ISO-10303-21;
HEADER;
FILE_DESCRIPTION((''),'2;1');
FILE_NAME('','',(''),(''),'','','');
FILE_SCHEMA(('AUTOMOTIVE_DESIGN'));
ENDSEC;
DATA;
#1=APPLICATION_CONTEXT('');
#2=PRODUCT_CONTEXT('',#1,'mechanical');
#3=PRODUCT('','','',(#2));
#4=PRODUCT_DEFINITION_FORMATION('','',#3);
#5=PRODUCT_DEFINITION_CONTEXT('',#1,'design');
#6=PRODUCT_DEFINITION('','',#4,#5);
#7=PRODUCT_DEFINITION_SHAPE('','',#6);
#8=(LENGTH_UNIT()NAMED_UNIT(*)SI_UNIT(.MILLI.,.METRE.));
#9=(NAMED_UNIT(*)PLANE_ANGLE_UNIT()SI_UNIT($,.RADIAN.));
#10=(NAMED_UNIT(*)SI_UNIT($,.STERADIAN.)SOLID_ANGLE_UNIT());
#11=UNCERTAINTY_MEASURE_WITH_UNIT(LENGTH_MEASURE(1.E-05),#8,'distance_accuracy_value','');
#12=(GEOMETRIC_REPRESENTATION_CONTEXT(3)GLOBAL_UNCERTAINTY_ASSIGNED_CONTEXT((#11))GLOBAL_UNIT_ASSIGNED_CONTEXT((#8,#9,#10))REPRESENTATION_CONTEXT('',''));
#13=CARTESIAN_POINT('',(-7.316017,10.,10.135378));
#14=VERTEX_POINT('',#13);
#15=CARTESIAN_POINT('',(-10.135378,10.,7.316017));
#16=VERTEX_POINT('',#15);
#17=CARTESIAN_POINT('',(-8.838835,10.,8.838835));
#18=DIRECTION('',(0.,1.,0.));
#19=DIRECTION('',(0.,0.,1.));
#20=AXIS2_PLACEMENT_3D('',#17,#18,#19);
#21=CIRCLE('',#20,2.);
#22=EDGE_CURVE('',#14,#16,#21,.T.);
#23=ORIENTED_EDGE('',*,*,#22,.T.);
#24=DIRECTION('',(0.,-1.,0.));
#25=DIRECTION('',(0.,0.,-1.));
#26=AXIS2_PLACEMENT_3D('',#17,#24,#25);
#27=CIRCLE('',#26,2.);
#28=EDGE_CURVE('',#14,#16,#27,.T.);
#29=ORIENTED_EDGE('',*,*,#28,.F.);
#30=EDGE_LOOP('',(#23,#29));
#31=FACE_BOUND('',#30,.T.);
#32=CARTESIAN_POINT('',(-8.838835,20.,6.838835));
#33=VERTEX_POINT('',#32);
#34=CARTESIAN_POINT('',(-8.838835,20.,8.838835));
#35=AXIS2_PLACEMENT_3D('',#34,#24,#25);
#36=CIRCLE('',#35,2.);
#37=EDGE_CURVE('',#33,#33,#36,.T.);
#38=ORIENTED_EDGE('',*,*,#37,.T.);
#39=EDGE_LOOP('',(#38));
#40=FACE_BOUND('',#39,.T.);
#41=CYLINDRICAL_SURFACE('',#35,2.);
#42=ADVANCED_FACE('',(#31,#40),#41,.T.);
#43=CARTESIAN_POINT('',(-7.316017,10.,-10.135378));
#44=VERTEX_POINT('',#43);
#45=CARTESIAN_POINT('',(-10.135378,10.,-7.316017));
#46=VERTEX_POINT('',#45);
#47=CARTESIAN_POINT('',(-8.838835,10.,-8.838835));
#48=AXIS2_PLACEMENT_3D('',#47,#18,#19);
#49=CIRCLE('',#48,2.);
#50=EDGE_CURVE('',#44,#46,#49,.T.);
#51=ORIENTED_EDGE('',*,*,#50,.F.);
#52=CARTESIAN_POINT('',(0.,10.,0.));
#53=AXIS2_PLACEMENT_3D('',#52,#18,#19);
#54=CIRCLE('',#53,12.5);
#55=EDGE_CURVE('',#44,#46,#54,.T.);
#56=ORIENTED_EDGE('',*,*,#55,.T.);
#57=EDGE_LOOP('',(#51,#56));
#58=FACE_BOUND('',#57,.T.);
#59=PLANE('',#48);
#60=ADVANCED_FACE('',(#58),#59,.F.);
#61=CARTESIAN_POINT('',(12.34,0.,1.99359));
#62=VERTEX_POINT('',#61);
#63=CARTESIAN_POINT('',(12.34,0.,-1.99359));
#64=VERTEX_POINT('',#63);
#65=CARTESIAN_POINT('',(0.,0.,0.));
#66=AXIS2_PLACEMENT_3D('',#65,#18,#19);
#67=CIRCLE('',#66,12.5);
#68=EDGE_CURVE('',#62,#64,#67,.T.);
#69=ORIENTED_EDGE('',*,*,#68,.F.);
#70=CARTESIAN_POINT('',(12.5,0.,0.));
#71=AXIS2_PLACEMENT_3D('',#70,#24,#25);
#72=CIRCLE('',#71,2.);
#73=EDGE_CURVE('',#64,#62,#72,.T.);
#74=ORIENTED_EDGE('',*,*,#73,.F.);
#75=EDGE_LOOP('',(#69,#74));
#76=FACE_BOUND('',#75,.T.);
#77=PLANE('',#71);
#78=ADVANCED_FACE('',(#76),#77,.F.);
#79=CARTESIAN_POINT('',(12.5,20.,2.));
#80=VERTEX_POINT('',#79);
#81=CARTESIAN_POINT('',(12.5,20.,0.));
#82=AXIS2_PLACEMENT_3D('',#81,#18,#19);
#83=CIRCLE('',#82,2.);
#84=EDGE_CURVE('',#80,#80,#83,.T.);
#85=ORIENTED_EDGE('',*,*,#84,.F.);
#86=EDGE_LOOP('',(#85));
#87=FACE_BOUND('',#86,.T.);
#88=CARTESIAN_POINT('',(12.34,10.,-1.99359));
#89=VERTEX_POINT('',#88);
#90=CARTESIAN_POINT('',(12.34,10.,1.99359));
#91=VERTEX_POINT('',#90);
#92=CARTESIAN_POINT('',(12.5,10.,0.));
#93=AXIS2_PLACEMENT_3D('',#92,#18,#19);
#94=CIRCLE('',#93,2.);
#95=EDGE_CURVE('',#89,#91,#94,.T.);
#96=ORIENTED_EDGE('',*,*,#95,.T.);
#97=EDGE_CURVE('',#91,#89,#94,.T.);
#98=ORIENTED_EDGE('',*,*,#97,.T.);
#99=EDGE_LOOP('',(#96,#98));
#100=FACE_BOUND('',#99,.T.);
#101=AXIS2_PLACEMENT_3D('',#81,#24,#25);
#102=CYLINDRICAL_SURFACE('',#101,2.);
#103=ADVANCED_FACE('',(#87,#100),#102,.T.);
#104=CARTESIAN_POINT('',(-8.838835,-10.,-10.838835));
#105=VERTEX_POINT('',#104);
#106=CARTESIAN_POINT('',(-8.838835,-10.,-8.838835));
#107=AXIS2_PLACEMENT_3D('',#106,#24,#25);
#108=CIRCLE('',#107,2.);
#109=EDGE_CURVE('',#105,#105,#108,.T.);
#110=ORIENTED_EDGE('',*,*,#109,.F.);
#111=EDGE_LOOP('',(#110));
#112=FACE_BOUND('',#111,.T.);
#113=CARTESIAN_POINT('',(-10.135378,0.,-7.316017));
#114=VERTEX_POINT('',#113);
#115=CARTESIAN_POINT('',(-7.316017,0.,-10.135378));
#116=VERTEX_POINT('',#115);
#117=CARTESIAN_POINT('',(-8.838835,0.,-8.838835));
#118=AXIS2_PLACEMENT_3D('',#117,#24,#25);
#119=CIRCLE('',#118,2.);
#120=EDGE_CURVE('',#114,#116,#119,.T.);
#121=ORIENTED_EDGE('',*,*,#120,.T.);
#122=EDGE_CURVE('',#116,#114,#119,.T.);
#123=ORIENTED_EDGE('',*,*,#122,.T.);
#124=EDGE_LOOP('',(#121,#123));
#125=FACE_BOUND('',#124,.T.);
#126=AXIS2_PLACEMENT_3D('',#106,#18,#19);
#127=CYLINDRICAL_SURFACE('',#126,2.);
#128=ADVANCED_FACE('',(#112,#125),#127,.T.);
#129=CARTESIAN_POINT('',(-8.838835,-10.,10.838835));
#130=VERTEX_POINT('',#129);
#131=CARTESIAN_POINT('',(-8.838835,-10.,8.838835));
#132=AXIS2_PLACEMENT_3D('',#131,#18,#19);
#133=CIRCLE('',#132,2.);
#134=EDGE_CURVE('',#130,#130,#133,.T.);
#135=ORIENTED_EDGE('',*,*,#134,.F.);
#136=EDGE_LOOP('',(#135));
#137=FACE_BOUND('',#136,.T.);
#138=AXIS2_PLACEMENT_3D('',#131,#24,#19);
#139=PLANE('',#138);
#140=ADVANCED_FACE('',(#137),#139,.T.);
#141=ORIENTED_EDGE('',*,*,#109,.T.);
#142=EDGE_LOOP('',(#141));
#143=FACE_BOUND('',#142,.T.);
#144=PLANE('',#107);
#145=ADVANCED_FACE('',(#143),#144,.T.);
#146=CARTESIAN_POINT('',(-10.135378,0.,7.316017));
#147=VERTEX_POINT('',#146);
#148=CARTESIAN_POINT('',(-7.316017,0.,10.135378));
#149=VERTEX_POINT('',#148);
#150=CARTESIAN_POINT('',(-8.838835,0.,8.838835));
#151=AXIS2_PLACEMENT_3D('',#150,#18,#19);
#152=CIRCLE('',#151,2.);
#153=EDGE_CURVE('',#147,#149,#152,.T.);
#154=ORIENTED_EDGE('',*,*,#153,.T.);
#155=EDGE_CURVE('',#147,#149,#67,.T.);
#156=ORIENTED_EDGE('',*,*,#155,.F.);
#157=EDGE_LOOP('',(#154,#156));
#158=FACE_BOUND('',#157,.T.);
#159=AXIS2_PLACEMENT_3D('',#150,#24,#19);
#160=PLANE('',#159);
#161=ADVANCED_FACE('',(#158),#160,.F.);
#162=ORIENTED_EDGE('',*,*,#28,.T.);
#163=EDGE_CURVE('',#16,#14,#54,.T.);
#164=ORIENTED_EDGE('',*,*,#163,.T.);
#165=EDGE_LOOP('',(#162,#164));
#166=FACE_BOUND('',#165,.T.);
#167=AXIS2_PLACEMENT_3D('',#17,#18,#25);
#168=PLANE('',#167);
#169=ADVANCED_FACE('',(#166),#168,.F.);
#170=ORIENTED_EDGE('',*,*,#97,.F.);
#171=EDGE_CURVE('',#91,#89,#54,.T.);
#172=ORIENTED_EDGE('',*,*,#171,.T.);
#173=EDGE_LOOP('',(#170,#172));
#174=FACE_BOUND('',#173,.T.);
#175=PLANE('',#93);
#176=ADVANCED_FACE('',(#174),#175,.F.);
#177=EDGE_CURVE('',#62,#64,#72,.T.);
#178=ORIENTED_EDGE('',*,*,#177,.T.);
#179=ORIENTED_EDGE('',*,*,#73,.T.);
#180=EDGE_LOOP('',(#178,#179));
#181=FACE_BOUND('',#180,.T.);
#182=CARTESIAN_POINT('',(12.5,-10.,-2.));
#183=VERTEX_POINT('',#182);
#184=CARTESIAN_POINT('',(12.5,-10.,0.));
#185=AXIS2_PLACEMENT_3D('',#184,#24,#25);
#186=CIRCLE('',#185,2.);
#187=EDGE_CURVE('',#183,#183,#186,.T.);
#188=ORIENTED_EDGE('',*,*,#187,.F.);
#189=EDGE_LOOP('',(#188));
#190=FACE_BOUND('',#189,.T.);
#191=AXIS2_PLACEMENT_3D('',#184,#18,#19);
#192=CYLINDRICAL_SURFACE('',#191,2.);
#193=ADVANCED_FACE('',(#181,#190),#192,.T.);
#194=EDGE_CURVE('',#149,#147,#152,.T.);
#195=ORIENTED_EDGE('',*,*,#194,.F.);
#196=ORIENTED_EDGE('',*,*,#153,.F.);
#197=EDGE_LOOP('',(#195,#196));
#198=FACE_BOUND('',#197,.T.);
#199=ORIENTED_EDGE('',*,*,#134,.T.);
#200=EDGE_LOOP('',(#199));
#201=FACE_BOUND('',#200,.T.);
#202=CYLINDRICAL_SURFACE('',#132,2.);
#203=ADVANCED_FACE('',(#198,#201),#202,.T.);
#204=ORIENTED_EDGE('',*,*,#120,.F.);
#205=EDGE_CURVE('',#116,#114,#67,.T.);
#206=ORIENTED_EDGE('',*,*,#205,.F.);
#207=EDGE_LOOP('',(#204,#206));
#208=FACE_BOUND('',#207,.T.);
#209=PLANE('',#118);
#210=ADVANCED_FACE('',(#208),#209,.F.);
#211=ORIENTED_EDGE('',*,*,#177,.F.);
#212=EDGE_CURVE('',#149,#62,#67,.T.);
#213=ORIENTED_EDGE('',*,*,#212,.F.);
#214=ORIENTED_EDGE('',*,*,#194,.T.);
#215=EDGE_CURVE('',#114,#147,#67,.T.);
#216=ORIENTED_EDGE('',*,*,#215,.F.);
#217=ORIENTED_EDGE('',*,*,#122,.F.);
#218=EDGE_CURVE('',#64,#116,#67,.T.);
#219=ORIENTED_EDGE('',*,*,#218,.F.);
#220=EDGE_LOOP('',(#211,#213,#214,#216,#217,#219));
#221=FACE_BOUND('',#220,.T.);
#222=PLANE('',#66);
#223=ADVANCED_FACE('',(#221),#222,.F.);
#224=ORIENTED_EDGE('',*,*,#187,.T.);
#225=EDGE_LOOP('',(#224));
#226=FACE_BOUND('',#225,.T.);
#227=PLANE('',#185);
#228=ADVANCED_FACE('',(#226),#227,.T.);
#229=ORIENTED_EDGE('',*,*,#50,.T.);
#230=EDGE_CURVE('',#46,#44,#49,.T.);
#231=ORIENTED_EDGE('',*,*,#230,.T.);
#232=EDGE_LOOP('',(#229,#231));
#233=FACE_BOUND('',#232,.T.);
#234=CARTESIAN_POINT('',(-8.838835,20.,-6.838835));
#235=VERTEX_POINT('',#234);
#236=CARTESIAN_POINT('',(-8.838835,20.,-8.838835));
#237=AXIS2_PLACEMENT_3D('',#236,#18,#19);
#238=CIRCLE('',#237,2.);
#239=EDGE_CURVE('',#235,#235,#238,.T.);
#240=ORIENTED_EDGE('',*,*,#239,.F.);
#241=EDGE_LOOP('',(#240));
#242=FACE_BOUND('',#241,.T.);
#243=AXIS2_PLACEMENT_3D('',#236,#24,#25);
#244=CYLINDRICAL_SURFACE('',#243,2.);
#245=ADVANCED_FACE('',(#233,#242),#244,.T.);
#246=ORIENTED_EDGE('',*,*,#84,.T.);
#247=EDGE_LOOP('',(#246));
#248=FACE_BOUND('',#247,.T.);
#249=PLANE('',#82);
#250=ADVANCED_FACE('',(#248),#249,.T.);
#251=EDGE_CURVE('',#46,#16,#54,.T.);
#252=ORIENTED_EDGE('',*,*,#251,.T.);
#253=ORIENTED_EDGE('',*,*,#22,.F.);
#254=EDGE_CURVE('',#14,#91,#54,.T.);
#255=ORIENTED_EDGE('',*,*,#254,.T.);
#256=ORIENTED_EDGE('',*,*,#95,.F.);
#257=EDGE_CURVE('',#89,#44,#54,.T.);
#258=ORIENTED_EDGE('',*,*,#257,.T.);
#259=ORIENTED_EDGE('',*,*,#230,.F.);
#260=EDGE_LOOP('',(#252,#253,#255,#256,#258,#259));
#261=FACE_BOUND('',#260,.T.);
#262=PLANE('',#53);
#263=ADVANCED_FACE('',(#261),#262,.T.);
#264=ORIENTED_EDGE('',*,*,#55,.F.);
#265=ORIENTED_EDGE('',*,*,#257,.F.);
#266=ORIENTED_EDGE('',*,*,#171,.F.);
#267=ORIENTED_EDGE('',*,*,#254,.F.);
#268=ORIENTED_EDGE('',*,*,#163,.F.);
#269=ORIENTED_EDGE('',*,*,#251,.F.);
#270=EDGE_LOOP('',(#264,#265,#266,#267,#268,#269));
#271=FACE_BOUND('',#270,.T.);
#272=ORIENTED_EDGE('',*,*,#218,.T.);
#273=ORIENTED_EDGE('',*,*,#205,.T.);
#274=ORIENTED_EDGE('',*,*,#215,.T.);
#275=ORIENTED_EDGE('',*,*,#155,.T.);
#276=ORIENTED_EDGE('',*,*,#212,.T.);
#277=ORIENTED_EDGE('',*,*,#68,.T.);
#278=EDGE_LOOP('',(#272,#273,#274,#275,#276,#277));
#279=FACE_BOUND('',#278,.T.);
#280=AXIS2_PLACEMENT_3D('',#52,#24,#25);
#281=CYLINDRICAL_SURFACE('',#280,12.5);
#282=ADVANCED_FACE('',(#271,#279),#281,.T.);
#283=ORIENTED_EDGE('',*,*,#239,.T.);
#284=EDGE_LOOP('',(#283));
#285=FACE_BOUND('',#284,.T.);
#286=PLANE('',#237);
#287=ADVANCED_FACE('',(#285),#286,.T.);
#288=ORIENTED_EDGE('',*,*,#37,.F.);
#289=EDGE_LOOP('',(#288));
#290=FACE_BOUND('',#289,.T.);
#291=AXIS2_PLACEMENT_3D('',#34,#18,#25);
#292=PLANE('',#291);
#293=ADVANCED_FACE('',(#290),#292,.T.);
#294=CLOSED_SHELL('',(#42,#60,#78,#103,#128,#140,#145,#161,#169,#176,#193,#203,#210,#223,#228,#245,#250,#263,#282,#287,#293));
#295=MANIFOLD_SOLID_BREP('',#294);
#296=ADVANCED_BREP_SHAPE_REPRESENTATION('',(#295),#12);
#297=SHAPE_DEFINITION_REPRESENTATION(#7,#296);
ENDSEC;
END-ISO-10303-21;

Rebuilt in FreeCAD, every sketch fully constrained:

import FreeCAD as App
import Part
import Sketcher

V = App.Vector

doc = App.newDocument("Part")
body = doc.addObject("PartDesign::Body", "Body")

# Sketch on XZ plane
sketch1 = body.newObject("Sketcher::SketchObject", "Sketch")
sketch1.AttachmentSupport = (doc.getObject("XZ_Plane"), [""])
sketch1.MapMode = "FlatFace"
sketch1.addGeometry(Part.Circle(V(0, 0, 0), V(0, 0, 1), 12.5), False)
sketch1.addConstraint(Sketcher.Constraint("Coincident", 0, 3, -1, 1))
sketch1.addConstraint(Sketcher.Constraint("Diameter", 0, 25.0))
pad1 = body.newObject("PartDesign::Pad", "Pad")
pad1.Profile = sketch1
pad1.Length = 10
pad1.Reversed = True

# Sketch on XZ plane
sketch2 = body.newObject("Sketcher::SketchObject", "Sketch001")
sketch2.AttachmentSupport = (doc.getObject("XZ_Plane"), [""])
sketch2.MapMode = "FlatFace"
sketch2.AttachmentOffset = App.Placement(V(0, 0, -10), App.Rotation())
sketch2.addGeometry(Part.Circle(V(-8.838835, -8.838835, 0), V(0, 0, 1), 2), False)
sketch2.addConstraint(Sketcher.Constraint("Diameter", 0, 4.0))
sketch2.addConstraint(Sketcher.Constraint("DistanceX", 0, 3, -1, 1, 8.838835))
sketch2.addConstraint(Sketcher.Constraint("DistanceY", 0, 3, -1, 1, 8.838835))
pad2 = body.newObject("PartDesign::Pad", "Pad001")
pad2.Profile = sketch2
pad2.Length = 10
pad2.Reversed = True
doc.recompute()

mirrored = body.newObject("PartDesign::Mirrored", "Mirrored")
mirrored.Originals = [pad2]
mirrored.MirrorPlane = (doc.getObject("XY_Plane"), [""])
body.Tip = mirrored

# Sketch on XZ plane
sketch3 = body.newObject("Sketcher::SketchObject", "Sketch002")
sketch3.AttachmentSupport = (doc.getObject("XZ_Plane"), [""])
sketch3.MapMode = "FlatFace"
sketch3.AttachmentOffset = App.Placement(V(0, 0, -10), App.Rotation())
sketch3.addGeometry(Part.Circle(V(12.5, 0, 0), V(0, 0, 1), 2), False)
sketch3.addConstraint(Sketcher.Constraint("PointOnObject", 0, 3, -1))
sketch3.addConstraint(Sketcher.Constraint("Diameter", 0, 4.0))
sketch3.addConstraint(Sketcher.Constraint("DistanceX", -1, 1, 0, 3, 12.5))
pad3 = body.newObject("PartDesign::Pad", "Pad002")
pad3.Profile = sketch3
pad3.Length = 10
pad3.Reversed = True

# Sketch on XZ plane
sketch4 = body.newObject("Sketcher::SketchObject", "Sketch003")
sketch4.AttachmentSupport = (doc.getObject("XZ_Plane"), [""])
sketch4.MapMode = "FlatFace"
sketch4.AttachmentOffset = App.Placement(V(0, 0, 10), App.Rotation())
sketch4.addGeometry(Part.Circle(V(-8.838835, -8.838835, 0), V(0, 0, 1), 2), False)
sketch4.addConstraint(Sketcher.Constraint("Diameter", 0, 4.0))
sketch4.addConstraint(Sketcher.Constraint("DistanceX", 0, 3, -1, 1, 8.838835))
sketch4.addConstraint(Sketcher.Constraint("DistanceY", 0, 3, -1, 1, 8.838835))
pad4 = body.newObject("PartDesign::Pad", "Pad003")
pad4.Profile = sketch4
pad4.Length = 10
pad4.Reversed = True
doc.recompute()

mirrored2 = body.newObject("PartDesign::Mirrored", "Mirrored001")
mirrored2.Originals = [pad4]
mirrored2.MirrorPlane = (doc.getObject("XY_Plane"), [""])
body.Tip = mirrored2

# Sketch on XZ plane
sketch5 = body.newObject("Sketcher::SketchObject", "Sketch004")
sketch5.AttachmentSupport = (doc.getObject("XZ_Plane"), [""])
sketch5.MapMode = "FlatFace"
sketch5.AttachmentOffset = App.Placement(V(0, 0, 10), App.Rotation())
sketch5.addGeometry(Part.Circle(V(12.5, 0, 0), V(0, 0, 1), 2), False)
sketch5.addConstraint(Sketcher.Constraint("PointOnObject", 0, 3, -1))
sketch5.addConstraint(Sketcher.Constraint("Diameter", 0, 4.0))
sketch5.addConstraint(Sketcher.Constraint("DistanceX", -1, 1, 0, 3, 12.5))
pad5 = body.newObject("PartDesign::Pad", "Pad004")
pad5.Profile = sketch5
pad5.Length = 10
pad5.Reversed = True

doc.recompute()
